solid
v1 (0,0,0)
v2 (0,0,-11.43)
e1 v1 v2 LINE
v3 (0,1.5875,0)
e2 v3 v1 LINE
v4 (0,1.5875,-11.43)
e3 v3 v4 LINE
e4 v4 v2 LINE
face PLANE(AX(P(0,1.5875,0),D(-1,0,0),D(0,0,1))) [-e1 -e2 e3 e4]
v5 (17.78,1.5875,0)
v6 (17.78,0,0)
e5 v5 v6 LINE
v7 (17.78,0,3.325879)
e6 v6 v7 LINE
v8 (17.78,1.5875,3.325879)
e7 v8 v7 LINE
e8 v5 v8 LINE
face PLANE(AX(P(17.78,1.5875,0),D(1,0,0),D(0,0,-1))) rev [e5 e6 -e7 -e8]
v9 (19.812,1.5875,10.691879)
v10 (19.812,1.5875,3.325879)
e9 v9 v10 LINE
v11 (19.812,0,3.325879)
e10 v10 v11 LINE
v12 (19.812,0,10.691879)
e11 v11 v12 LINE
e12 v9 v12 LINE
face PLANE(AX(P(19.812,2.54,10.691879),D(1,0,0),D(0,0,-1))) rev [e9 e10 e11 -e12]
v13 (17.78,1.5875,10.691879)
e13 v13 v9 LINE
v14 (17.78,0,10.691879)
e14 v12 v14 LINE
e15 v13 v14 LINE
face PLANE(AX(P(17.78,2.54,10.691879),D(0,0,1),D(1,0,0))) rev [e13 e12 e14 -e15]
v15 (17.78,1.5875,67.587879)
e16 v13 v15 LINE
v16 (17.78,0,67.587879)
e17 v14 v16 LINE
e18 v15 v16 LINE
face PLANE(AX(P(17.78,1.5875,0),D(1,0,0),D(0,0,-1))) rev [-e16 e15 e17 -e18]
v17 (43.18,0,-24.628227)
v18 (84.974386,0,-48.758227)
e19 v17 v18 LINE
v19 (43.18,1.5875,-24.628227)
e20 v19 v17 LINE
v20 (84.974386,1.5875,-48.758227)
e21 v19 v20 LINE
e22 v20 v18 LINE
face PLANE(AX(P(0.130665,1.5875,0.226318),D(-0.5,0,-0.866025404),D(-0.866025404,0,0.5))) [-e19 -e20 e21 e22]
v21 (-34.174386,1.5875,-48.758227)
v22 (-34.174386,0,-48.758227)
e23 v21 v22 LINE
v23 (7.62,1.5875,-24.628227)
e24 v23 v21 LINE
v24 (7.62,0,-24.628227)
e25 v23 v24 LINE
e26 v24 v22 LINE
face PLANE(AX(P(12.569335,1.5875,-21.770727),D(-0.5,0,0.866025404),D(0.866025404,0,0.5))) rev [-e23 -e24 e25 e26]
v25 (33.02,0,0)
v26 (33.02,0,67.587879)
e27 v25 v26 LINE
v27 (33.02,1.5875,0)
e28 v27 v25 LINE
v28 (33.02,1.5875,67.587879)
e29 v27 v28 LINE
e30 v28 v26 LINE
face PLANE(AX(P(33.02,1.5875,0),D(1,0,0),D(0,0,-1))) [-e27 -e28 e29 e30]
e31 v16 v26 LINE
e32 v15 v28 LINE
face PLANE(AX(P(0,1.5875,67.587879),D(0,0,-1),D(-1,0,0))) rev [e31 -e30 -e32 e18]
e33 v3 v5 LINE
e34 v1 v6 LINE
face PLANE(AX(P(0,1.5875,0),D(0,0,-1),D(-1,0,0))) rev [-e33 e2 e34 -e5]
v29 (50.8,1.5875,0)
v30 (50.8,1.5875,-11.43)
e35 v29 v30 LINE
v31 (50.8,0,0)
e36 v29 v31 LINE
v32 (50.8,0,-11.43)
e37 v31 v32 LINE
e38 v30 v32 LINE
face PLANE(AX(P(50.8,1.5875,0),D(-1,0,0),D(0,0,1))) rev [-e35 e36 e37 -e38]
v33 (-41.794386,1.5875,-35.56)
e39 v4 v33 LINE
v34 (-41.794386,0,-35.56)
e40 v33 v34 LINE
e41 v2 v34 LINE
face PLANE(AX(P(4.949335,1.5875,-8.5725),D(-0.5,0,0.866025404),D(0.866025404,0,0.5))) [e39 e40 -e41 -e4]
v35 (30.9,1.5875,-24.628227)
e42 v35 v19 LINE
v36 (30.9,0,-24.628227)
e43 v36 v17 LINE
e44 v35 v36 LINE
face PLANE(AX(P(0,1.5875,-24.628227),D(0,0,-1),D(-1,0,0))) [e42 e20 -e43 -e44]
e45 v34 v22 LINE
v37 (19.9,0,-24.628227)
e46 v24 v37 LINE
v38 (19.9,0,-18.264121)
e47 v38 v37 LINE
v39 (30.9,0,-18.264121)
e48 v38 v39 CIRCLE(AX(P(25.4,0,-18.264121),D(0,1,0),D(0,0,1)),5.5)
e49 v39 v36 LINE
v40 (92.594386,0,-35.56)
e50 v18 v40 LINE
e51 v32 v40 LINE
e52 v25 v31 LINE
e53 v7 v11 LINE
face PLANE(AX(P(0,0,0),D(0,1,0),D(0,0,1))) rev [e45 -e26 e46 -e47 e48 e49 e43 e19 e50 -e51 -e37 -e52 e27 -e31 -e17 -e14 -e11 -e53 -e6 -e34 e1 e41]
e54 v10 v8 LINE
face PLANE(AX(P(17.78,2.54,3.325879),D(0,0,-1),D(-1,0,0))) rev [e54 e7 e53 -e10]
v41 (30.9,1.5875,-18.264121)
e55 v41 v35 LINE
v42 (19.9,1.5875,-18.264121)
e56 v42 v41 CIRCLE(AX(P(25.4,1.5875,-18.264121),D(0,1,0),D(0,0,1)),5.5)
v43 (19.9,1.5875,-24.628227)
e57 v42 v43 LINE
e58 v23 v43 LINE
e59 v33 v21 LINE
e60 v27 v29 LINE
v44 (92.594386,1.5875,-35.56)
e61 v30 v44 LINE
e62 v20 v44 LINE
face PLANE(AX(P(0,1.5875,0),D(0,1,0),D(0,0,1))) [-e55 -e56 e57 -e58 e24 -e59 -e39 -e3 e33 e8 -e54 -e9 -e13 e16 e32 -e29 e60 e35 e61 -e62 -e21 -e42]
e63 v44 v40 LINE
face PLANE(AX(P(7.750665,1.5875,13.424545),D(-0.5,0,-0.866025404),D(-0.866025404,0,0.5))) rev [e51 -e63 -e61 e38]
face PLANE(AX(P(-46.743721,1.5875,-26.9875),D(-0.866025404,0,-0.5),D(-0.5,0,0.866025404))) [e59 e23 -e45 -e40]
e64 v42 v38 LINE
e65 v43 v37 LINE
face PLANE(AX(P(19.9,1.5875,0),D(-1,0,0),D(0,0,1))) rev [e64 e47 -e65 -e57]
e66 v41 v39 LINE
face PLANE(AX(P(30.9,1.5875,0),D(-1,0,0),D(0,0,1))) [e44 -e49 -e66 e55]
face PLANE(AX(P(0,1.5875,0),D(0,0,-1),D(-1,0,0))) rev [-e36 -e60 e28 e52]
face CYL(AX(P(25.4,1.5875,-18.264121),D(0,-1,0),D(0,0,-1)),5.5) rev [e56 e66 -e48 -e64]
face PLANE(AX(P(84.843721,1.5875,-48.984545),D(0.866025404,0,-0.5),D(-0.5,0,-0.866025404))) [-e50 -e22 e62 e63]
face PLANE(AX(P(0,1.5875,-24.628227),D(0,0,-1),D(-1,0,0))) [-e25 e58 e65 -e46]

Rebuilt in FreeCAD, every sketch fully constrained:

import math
import FreeCAD as App
import Part
import Sketcher

V = App.Vector
Q = App.Units.Quantity

doc = App.newDocument("Part")
body = doc.addObject("PartDesign::Body", "Body")

sketch1 = body.newObject("Sketcher::SketchObject", "Sketch")
sketch1.AttachmentSupport = (doc.getObject("XZ_Plane"), [""])
sketch1.MapMode = "FlatFace"
sketch1.addGeometry([
    Part.LineSegment(V(0, -11.43, 0), V(0, 0, 0)),
    Part.LineSegment(V(0, 0, 0), V(17.78, 0, 0)),
    Part.LineSegment(V(17.78, 0, 0), V(17.78, 67.587879, 0)),
    Part.LineSegment(V(17.78, 67.587879, 0), V(33.02, 67.587879, 0)),
    Part.LineSegment(V(33.02, 67.587879, 0), V(33.02, 0, 0)),
    Part.LineSegment(V(33.02, 0, 0), V(50.8, 0, 0)),
    Part.LineSegment(V(50.8, 0, 0), V(50.8, -11.43, 0)),
    Part.LineSegment(V(50.8, -11.43, 0), V(92.594386, -35.56, 0)),
    Part.LineSegment(V(92.594386, -35.56, 0), V(84.974386, -48.758227, 0)),
    Part.LineSegment(V(84.974386, -48.758227, 0), V(43.18, -24.628227, 0)),
    Part.LineSegment(V(43.18, -24.628227, 0), V(30.9, -24.628227, 0)),
    Part.LineSegment(V(30.9, -24.628227, 0), V(30.9, -18.264121, 0)),
    Part.ArcOfCircle(Part.Circle(V(25.4, -18.264121, 0), V(0, 0, 1), 5.5), math.radians(0), math.radians(180)),
    Part.LineSegment(V(19.9, -18.264121, 0), V(19.9, -24.628227, 0)),
    Part.LineSegment(V(19.9, -24.628227, 0), V(7.62, -24.628227, 0)),
    Part.LineSegment(V(7.62, -24.628227, 0), V(-34.174386, -48.758227, 0)),
    Part.LineSegment(V(-34.174386, -48.758227, 0), V(-41.794386, -35.56, 0)),
    Part.LineSegment(V(-41.794386, -35.56, 0), V(0, -11.43, 0)),
], False)
sketch1.addConstraint([
    Sketcher.Constraint("Coincident", 0, 2, 1, 1),
    Sketcher.Constraint("Coincident", 1, 2, 2, 1),
    Sketcher.Constraint("Coincident", 2, 2, 3, 1),
    Sketcher.Constraint("Coincident", 3, 2, 4, 1),
    Sketcher.Constraint("Coincident", 4, 2, 5, 1),
    Sketcher.Constraint("Coincident", 5, 2, 6, 1),
    Sketcher.Constraint("Coincident", 6, 2, 7, 1),
    Sketcher.Constraint("Coincident", 7, 2, 8, 1),
    Sketcher.Constraint("Coincident", 8, 2, 9, 1),
    Sketcher.Constraint("Coincident", 9, 2, 10, 1),
    Sketcher.Constraint("Coincident", 10, 2, 11, 1),
    Sketcher.Constraint("Tangent", 11, 2, 12, 1),
    Sketcher.Constraint("Tangent", 12, 2, 13, 1),
    Sketcher.Constraint("Coincident", 13, 2, 14, 1),
    Sketcher.Constraint("Coincident", 14, 2, 15, 1),
    Sketcher.Constraint("Coincident", 15, 2, 16, 1),
    Sketcher.Constraint("Coincident", 16, 2, 17, 1),
    Sketcher.Constraint("Coincident", 17, 2, 0, 1),
    Sketcher.Constraint("Vertical", 0),
    Sketcher.Constraint("Horizontal", 1),
    Sketcher.Constraint("Vertical", 2),
    Sketcher.Constraint("Horizontal", 3),
    Sketcher.Constraint("Vertical", 4),
    Sketcher.Constraint("Horizontal", 5),
    Sketcher.Constraint("Vertical", 6),
    Sketcher.Constraint("Horizontal", 10),
    Sketcher.Constraint("Vertical", 11),
    Sketcher.Constraint("Vertical", 13),
    Sketcher.Constraint("Horizontal", 14),
    Sketcher.Constraint("Coincident", 0, 2, -1, 1),
    Sketcher.Constraint("PointOnObject", 4, 2, -1),
    Sketcher.Constraint("Perpendicular", 7, 8),
    Sketcher.Constraint("Perpendicular", 8, 9),
    Sketcher.Constraint("Perpendicular", 15, 16),
    Sketcher.Constraint("Perpendicular", 16, 17),
    Sketcher.Constraint("Horizontal", 10, 2, 13, 2),
    Sketcher.Constraint("Horizontal", 8, 2, 15, 2),
    Sketcher.Constraint("Horizontal", 7, 2, 16, 2),
    Sketcher.Constraint("Horizontal", 6, 2, 17, 2),
    Sketcher.Constraint("Equal", 1, 5),
    Sketcher.Constraint("Equal", 10, 14),
    Sketcher.Constraint("Equal", 7, 9),
    Sketcher.Constraint("Equal", 9, 15),
    Sketcher.Constraint("DistanceX", 1, 1, 1, 2, Q("0.7 in")),
    Sketcher.Constraint("DistanceX", 3, 1, 3, 2, Q("0.6 in")),
    Sketcher.Constraint("Angle", 7, Q("-30 deg")),
    Sketcher.Constraint("DistanceX", 1, 2, 9, 2, Q("1 in")),
    Sketcher.Constraint("Distance", 7, Q("1.9 in")),
    Sketcher.Constraint("DistanceY", 0, 1, 0, 2, Q("0.45 in")),
    Sketcher.Constraint("Radius", 12, Q("5.5 mm")),
    Sketcher.Constraint("DistanceY", 12, 3, 2, 2, Q("3.38 in")),
    Sketcher.Constraint("DistanceY", 2, 1, 2, 2, Q("67.587879 mm")),
])
pad1 = body.newObject("PartDesign::Pad", "Pad")
pad1.Profile = sketch1
pad1.Length = Q("0.0625 in")
pad1.Reversed = True

sketch2 = body.newObject("Sketcher::SketchObject", "Sketch001")
sketch2.AttachmentSupport = (doc.getObject("XZ_Plane"), [""])
sketch2.MapMode = "FlatFace"
sketch2.addGeometry([
    Part.LineSegment(V(19.812, 3.325879, 0), V(19.812, 10.691879, 0)),
    Part.LineSegment(V(19.812, 10.691879, 0), V(17.78, 10.691879, 0)),
    Part.LineSegment(V(17.78, 10.691879, 0), V(17.78, 3.325879, 0)),
    Part.LineSegment(V(17.78, 3.325879, 0), V(19.812, 3.325879, 0)),
], False)
sketch2.addConstraint([
    Sketcher.Constraint("Coincident", 0, 2, 1, 1),
    Sketcher.Constraint("Coincident", 1, 2, 2, 1),
    Sketcher.Constraint("Coincident", 2, 2, 3, 1),
    Sketcher.Constraint("Coincident", 3, 2, 0, 1),
    Sketcher.Constraint("Vertical", 0),
    Sketcher.Constraint("Horizontal", 1),
    Sketcher.Constraint("Vertical", 2),
    Sketcher.Constraint("Horizontal", 3),
    Sketcher.Constraint("DistanceX", 1, 2, 1, 1, Q("0.08 in")),
    Sketcher.Constraint("DistanceY", 0, 1, 0, 2, Q("0.29 in")),
    Sketcher.Constraint("DistanceX", -1, 1, 1, 2, Q("0.7 in")),
    Sketcher.Constraint("DistanceY", -1, 1, 0, 2, Q("10.691879 mm")),
])
pocket1 = body.newObject("PartDesign::Pocket", "Pocket")
pocket1.Profile = sketch2
pocket1.Length = Q("0.1 in")

doc.recompute()
